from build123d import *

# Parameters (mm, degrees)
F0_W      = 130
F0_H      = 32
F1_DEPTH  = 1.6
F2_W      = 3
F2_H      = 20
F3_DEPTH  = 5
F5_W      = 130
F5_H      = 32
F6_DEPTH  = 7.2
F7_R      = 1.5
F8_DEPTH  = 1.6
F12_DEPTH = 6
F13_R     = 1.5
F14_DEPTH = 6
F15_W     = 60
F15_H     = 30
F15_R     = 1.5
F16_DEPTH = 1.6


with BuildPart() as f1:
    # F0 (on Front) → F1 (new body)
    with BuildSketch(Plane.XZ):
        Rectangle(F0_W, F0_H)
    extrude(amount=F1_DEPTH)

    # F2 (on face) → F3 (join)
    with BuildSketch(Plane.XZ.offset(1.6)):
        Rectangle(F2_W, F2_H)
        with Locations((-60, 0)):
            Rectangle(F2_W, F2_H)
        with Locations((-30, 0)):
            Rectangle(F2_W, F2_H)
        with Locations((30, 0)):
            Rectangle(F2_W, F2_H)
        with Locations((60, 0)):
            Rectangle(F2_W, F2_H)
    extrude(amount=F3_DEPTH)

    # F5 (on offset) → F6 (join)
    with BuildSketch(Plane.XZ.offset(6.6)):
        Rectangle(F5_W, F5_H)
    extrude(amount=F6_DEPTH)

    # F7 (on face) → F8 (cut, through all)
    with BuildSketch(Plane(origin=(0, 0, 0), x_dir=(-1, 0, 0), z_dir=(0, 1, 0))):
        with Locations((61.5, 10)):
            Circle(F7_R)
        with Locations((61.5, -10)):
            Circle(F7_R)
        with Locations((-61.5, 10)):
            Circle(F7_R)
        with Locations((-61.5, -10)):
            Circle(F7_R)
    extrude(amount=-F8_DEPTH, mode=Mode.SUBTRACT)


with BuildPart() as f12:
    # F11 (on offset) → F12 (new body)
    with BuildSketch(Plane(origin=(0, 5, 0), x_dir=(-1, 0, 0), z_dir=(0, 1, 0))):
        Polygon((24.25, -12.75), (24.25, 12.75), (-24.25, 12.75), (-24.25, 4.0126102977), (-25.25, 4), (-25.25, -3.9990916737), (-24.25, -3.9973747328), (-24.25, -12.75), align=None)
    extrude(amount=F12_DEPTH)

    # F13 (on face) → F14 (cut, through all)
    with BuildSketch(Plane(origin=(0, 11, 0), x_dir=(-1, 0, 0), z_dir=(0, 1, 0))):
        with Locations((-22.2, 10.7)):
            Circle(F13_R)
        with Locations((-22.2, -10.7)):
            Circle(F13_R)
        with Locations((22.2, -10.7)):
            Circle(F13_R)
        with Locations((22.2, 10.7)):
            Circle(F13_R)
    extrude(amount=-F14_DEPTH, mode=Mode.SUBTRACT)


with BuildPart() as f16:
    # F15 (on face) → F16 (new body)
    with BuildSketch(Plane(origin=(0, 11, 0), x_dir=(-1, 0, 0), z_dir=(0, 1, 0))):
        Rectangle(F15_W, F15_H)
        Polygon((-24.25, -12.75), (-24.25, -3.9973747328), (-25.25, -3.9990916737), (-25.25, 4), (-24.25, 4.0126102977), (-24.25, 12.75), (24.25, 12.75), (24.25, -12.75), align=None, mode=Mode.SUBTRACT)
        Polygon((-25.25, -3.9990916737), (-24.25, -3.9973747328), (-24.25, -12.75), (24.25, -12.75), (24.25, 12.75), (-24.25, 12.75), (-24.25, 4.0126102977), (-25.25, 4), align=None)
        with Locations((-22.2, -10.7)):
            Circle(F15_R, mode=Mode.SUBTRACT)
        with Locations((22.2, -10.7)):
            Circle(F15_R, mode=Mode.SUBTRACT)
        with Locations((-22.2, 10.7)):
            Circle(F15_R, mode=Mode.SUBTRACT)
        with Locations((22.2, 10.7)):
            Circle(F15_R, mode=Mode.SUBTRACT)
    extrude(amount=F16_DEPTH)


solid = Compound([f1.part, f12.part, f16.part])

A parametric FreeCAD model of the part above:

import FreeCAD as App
import Part
import Sketcher
Q = App.Units.Quantity

doc = App.newDocument("Part")
body = doc.addObject("PartDesign::Body", "Body")

sketch1 = body.newObject("Sketcher::SketchObject", "Sketch")
sketch1.AttachmentSupport = (doc.getObject("XZ_Plane"), [""])
sketch1.MapMode = "FlatFace"
sketch1.addGeometry([
    Part.LineSegment(App.Vector(-65, 16, 0), App.Vector(-65, -16, 0)),
    Part.LineSegment(App.Vector(-65, -16, 0), App.Vector(65, -16, 0)),
    Part.LineSegment(App.Vector(65, -16, 0), App.Vector(65, 16, 0)),
    Part.LineSegment(App.Vector(65, 16, 0), App.Vector(-65, 16, 0)),
], False)
sketch1.addConstraint([
    Sketcher.Constraint("Coincident", 0, 2, 1, 1),
    Sketcher.Constraint("Coincident", 1, 2, 2, 1),
    Sketcher.Constraint("Coincident", 2, 2, 3, 1),
    Sketcher.Constraint("Coincident", 3, 2, 0, 1),
    Sketcher.Constraint("Vertical", 0),
    Sketcher.Constraint("Horizontal", 1),
    Sketcher.Constraint("Vertical", 2),
    Sketcher.Constraint("Horizontal", 3),
    Sketcher.Constraint("Symmetric", 0, 2, 2, 2, -1, 1),
    Sketcher.Constraint("DistanceX", 1, 1, 1, 2, Q("130 mm")),
    Sketcher.Constraint("DistanceY", 0, 2, 0, 1, Q("32 mm")),
])
pad1 = body.newObject("PartDesign::Pad", "Pad")
pad1.Profile = sketch1
pad1.Length = 1.6

sketch2 = body.newObject("Sketcher::SketchObject", "Sketch001")
sketch2.AttachmentSupport = (doc.getObject("XZ_Plane"), [""])
sketch2.MapMode = "FlatFace"
sketch2.AttachmentOffset = App.Placement(App.Vector(0, 0, 1.6), App.Rotation())
sketch2.addGeometry([
    Part.LineSegment(App.Vector(-1.5, 10, 0), App.Vector(-1.5, -10, 0)),
    Part.LineSegment(App.Vector(-1.5, -10, 0), App.Vector(1.5, -10, 0)),
    Part.LineSegment(App.Vector(1.5, -10, 0), App.Vector(1.5, 10, 0)),
    Part.LineSegment(App.Vector(1.5, 10, 0), App.Vector(-1.5, 10, 0)),
    Part.LineSegment(App.Vector(-61.5, 10, 0), App.Vector(-61.5, -10, 0)),
    Part.LineSegment(App.Vector(-61.5, -10, 0), App.Vector(-58.5, -10, 0)),
    Part.LineSegment(App.Vector(-58.5, -10, 0), App.Vector(-58.5, 10, 0)),
    Part.LineSegment(App.Vector(-58.5, 10, 0), App.Vector(-61.5, 10, 0)),
    Part.LineSegment(App.Vector(-31.5, 10, 0), App.Vector(-31.5, -10, 0)),
    Part.LineSegment(App.Vector(-31.5, -10, 0), App.Vector(-28.5, -10, 0)),
    Part.LineSegment(App.Vector(-28.5, -10, 0), App.Vector(-28.5, 10, 0)),
    Part.LineSegment(App.Vector(-28.5, 10, 0), App.Vector(-31.5, 10, 0)),
    Part.LineSegment(App.Vector(28.5, 10, 0), App.Vector(28.5, -10, 0)),
    Part.LineSegment(App.Vector(28.5, -10, 0), App.Vector(31.5, -10, 0)),
    Part.LineSegment(App.Vector(31.5, -10, 0), App.Vector(31.5, 10, 0)),
    Part.LineSegment(App.Vector(31.5, 10, 0), App.Vector(28.5, 10, 0)),
    Part.LineSegment(App.Vector(58.5, 10, 0), App.Vector(58.5, -10, 0)),
    Part.LineSegment(App.Vector(58.5, -10, 0), App.Vector(61.5, -10, 0)),
    Part.LineSegment(App.Vector(61.5, -10, 0), App.Vector(61.5, 10, 0)),
    Part.LineSegment(App.Vector(61.5, 10, 0), App.Vector(58.5, 10, 0)),
], False)
sketch2.addConstraint([
    Sketcher.Constraint("Coincident", 0, 2, 1, 1),
    Sketcher.Constraint("Coincident", 1, 2, 2, 1),
    Sketcher.Constraint("Coincident", 2, 2, 3, 1),
    Sketcher.Constraint("Coincident", 3, 2, 0, 1),
    Sketcher.Constraint("Coincident", 4, 2, 5, 1),
    Sketcher.Constraint("Coincident", 5, 2, 6, 1),
    Sketcher.Constraint("Coincident", 6, 2, 7, 1),
    Sketcher.Constraint("Coincident", 7, 2, 4, 1),
    Sketcher.Constraint("Coincident", 8, 2, 9, 1),
    Sketcher.Constraint("Coincident", 9, 2, 10, 1),
    Sketcher.Constraint("Coincident", 10, 2, 11, 1),
    Sketcher.Constraint("Coincident", 11, 2, 8, 1),
    Sketcher.Constraint("Coincident", 12, 2, 13, 1),
    Sketcher.Constraint("Coincident", 13, 2, 14, 1),
    Sketcher.Constraint("Coincident", 14, 2, 15, 1),
    Sketcher.Constraint("Coincident", 15, 2, 12, 1),
    Sketcher.Constraint("Coincident", 16, 2, 17, 1),
    Sketcher.Constraint("Coincident", 17, 2, 18, 1),
    Sketcher.Constraint("Coincident", 18, 2, 19, 1),
    Sketcher.Constraint("Coincident", 19, 2, 16, 1),
    Sketcher.Constraint("Vertical", 0),
    Sketcher.Constraint("Horizontal", 1),
    Sketcher.Constraint("Vertical", 2),
    Sketcher.Constraint("Horizontal", 3),
    Sketcher.Constraint("Vertical", 4),
    Sketcher.Constraint("Horizontal", 5),
    Sketcher.Constraint("Vertical", 6),
    Sketcher.Constraint("Horizontal", 7),
    Sketcher.Constraint("Vertical", 8),
    Sketcher.Constraint("Horizontal", 9),
    Sketcher.Constraint("Vertical", 10),
    Sketcher.Constraint("Horizontal", 11),
    Sketcher.Constraint("Vertical", 12),
    Sketcher.Constraint("Horizontal", 13),
    Sketcher.Constraint("Vertical", 14),
    Sketcher.Constraint("Horizontal", 15),
    Sketcher.Constraint("Vertical", 16),
    Sketcher.Constraint("Horizontal", 17),
    Sketcher.Constraint("Vertical", 18),
    Sketcher.Constraint("Horizontal", 19),
    Sketcher.Constraint("Symmetric", 0, 2, 2, 2, -1, 1),
    Sketcher.Constraint("Symmetric", 10, 2, 12, 2, -1, 1),
    Sketcher.Constraint("Symmetric", 8, 2, 14, 2, -1, 1),
    Sketcher.Constraint("Symmetric", 6, 2, 16, 2, -1, 1),
    Sketcher.Constraint("Symmetric", 4, 2, 18, 2, -1, 1),
    Sketcher.Constraint("Horizontal", 1, 2, 4, 2),
    Sketcher.Constraint("Horizontal", 3, 2, 6, 2),
    Sketcher.Constraint("Horizontal", 5, 2, 8, 2),
    Sketcher.Constraint("Horizontal", 7, 2, 10, 2),
    Sketcher.Constraint("Equal", 3, 5),
    Sketcher.Constraint("Equal", 7, 9),
    Sketcher.Constraint("DistanceX", 1, 1, 1, 2, Q("3 mm")),
    Sketcher.Constraint("DistanceY", 0, 2, 0, 1, Q("20 mm")),
    Sketcher.Constraint("DistanceX", 4, 2, 0, 2, Q("60 mm")),
    Sketcher.Constraint("DistanceX", 5, 2, 8, 2, Q("27 mm")),
])
pad2 = body.newObject("PartDesign::Pad", "Pad001")
pad2.Profile = sketch2
pad2.Length = 5

sketch3 = body.newObject("Sketcher::SketchObject", "Sketch002")
sketch3.AttachmentSupport = (doc.getObject("XZ_Plane"), [""])
sketch3.MapMode = "FlatFace"
sketch3.AttachmentOffset = App.Placement(App.Vector(0, 0, 6.6), App.Rotation())
sketch3.addGeometry([
    Part.LineSegment(App.Vector(-65, 16, 0), App.Vector(-65, -16, 0)),
    Part.LineSegment(App.Vector(-65, -16, 0), App.Vector(65, -16, 0)),
    Part.LineSegment(App.Vector(65, -16, 0), App.Vector(65, 16, 0)),
    Part.LineSegment(App.Vector(65, 16, 0), App.Vector(-65, 16, 0)),
], False)
sketch3.addConstraint([
    Sketcher.Constraint("Coincident", 0, 2, 1, 1),
    Sketcher.Constraint("Coincident", 1, 2, 2, 1),
    Sketcher.Constraint("Coincident", 2, 2, 3, 1),
    Sketcher.Constraint("Coincident", 3, 2, 0, 1),
    Sketcher.Constraint("Vertical", 0),
    Sketcher.Constraint("Horizontal", 1),
    Sketcher.Constraint("Vertical", 2),
    Sketcher.Constraint("Horizontal", 3),
    Sketcher.Constraint("Symmetric", 0, 2, 2, 2, -1, 1),
    Sketcher.Constraint("DistanceX", 1, 1, 1, 2, Q("130 mm")),
    Sketcher.Constraint("DistanceY", 0, 2, 0, 1, Q("32 mm")),
])
pad3 = body.newObject("PartDesign::Pad", "Pad002")
pad3.Profile = sketch3
pad3.Length = 7.2

sketch4 = body.newObject("Sketcher::SketchObject", "Sketch003")
sketch4.AttachmentSupport = (doc.getObject("XZ_Plane"), [""])
sketch4.MapMode = "FlatFace"
sketch4.addGeometry([
    Part.Circle(App.Vector(-61.5, 10, 0), App.Vector(0, 0, 1), 1.5),
    Part.Circle(App.Vector(-61.5, -10, 0), App.Vector(0, 0, 1), 1.5),
    Part.Circle(App.Vector(61.5, 10, 0), App.Vector(0, 0, 1), 1.5),
    Part.Circle(App.Vector(61.5, -10, 0), App.Vector(0, 0, 1), 1.5),
], False)
sketch4.addConstraint([
    Sketcher.Constraint("Equal", 0, 1),
    Sketcher.Constraint("Equal", 1, 2),
    Sketcher.Constraint("Equal", 2, 3),
    Sketcher.Constraint("Symmetric", 1, 3, 2, 3, -1, 1),
    Sketcher.Constraint("Symmetric", 0, 3, 3, 3, -1, 1),
    Sketcher.Constraint("Symmetric", 0, 3, 2, 3, -2),
    Sketcher.Constraint("Diameter", 0, Q("3 mm")),
    Sketcher.Constraint("DistanceY", -1, 1, 0, 3, Q("10 mm")),
    Sketcher.Constraint("DistanceX", 0, 3, 2, 3, Q("123 mm")),
])
pocket1 = body.newObject("PartDesign::Pocket", "Pocket")
pocket1.Profile = sketch4
pocket1.Length = 1.6
pocket1.Reversed = True
body2 = doc.addObject("PartDesign::Body", "Body001")

sketch5 = body2.newObject("Sketcher::SketchObject", "Sketch004")
sketch5.AttachmentSupport = (doc.getObject("XZ_Plane001"), [""])
sketch5.MapMode = "FlatFace"
sketch5.AttachmentOffset = App.Placement(App.Vector(0, 0, -5), App.Rotation())
sketch5.addGeometry([
    Part.LineSegment(App.Vector(-24.2, -12.8, 0), App.Vector(-24.2, 12.8, 0)),
    Part.LineSegment(App.Vector(-24.2, 12.8, 0), App.Vector(24.2, 12.8, 0)),
    Part.LineSegment(App.Vector(24.2, 12.8, 0), App.Vector(24.2, 4, 0)),
    Part.LineSegment(App.Vector(24.2, 4, 0), App.Vector(25.2, 4, 0)),
    Part.LineSegment(App.Vector(25.2, 4, 0), App.Vector(25.2, -4, 0)),
    Part.LineSegment(App.Vector(25.2, -4, 0), App.Vector(24.2, -4, 0)),
    Part.LineSegment(App.Vector(24.2, -4, 0), App.Vector(24.2, -12.8, 0)),
    Part.LineSegment(App.Vector(24.2, -12.8, 0), App.Vector(-24.2, -12.8, 0)),
], False)
sketch5.addConstraint([
    Sketcher.Constraint("Coincident", 0, 2, 1, 1),
    Sketcher.Constraint("Coincident", 1, 2, 2, 1),
    Sketcher.Constraint("Coincident", 2, 2, 3, 1),
    Sketcher.Constraint("Coincident", 3, 2, 4, 1),
    Sketcher.Constraint("Coincident", 4, 2, 5, 1),
    Sketcher.Constraint("Coincident", 5, 2, 6, 1),
    Sketcher.Constraint("Coincident", 6, 2, 7, 1),
    Sketcher.Constraint("Coincident", 7, 2, 0, 1),
    Sketcher.Constraint("Vertical", 0),
    Sketcher.Constraint("Horizontal", 1),
    Sketcher.Constraint("Vertical", 2),
    Sketcher.Constraint("Vertical", 4),
    Sketcher.Constraint("Vertical", 6),
    Sketcher.Constraint("Horizontal", 7),
    Sketcher.Constraint("Symmetric", 0, 2, 6, 2, -1, 1),
    Sketcher.Constraint("Vertical", 2, 2, 5, 2),
    Sketcher.Constraint("Distance", 5, Q("1.000001 mm")),
    Sketcher.Constraint("DistanceX", 1, 1, 1, 2, Q("48.5 mm")),
    Sketcher.Constraint("DistanceY", 0, 1, 0, 2, Q("25.5 mm")),
    Sketcher.Constraint("DistanceY", -1, 1, 3, 2, Q("4 mm")),
    Sketcher.Constraint("DistanceY", 2, 2, 2, 1, Q("8.73739 mm")),
    Sketcher.Constraint("DistanceY", 4, 2, 4, 1, Q("7.999092 mm")),
    Sketcher.Constraint("DistanceY", 6, 2, 6, 1, Q("8.752625 mm")),
])
pad4 = body2.newObject("PartDesign::Pad", "Pad003")
pad4.Profile = sketch5
pad4.Length = 6
pad4.Reversed = True

sketch6 = body2.newObject("Sketcher::SketchObject", "Sketch005")
sketch6.AttachmentSupport = (doc.getObject("XZ_Plane001"), [""])
sketch6.MapMode = "FlatFace"
sketch6.AttachmentOffset = App.Placement(App.Vector(0, 0, -11), App.Rotation())
sketch6.addGeometry([
    Part.Circle(App.Vector(22.2, 10.7, 0), App.Vector(0, 0, 1), 1.5),
    Part.Circle(App.Vector(22.2, -10.7, 0), App.Vector(0, 0, 1), 1.5),
    Part.Circle(App.Vector(-22.2, -10.7, 0), App.Vector(0, 0, 1), 1.5),
    Part.Circle(App.Vector(-22.2, 10.7, 0), App.Vector(0, 0, 1), 1.5),
], False)
sketch6.addConstraint([
    Sketcher.Constraint("Equal", 0, 1),
    Sketcher.Constraint("Equal", 1, 2),
    Sketcher.Constraint("Equal", 2, 3),
    Sketcher.Constraint("Symmetric", 0, 3, 2, 3, -1, 1),
    Sketcher.Constraint("Symmetric", 1, 3, 3, 3, -1, 1),
    Sketcher.Constraint("Symmetric", 1, 3, 2, 3, -2),
    Sketcher.Constraint("Diameter", 0, Q("3 mm")),
    Sketcher.Constraint("DistanceX", -1, 1, 0, 3, Q("22.2 mm")),
    Sketcher.Constraint("DistanceY", -1, 1, 0, 3, Q("10.7 mm")),
])
pocket2 = body2.newObject("PartDesign::Pocket", "Pocket001")
pocket2.Profile = sketch6
pocket2.Type = "ThroughAll"
pocket2.Reversed = True
body3 = doc.addObject("PartDesign::Body", "Body002")

sketch7 = body3.newObject("Sketcher::SketchObject", "Sketch006")
sketch7.AttachmentSupport = (doc.getObject("XZ_Plane002"), [""])
sketch7.MapMode = "FlatFace"
sketch7.AttachmentOffset = App.Placement(App.Vector(0, 0, -11), App.Rotation())
sketch7.addGeometry([
    Part.LineSegment(App.Vector(30, 15, 0), App.Vector(30, -15, 0)),
    Part.LineSegment(App.Vector(30, -15, 0), App.Vector(-30, -15, 0)),
    Part.LineSegment(App.Vector(-30, -15, 0), App.Vector(-30, 15, 0)),
    Part.LineSegment(App.Vector(-30, 15, 0), App.Vector(30, 15, 0)),
    Part.Circle(App.Vector(22.2, -10.7, 0), App.Vector(0, 0, 1), 1.5),
    Part.Circle(App.Vector(-22.2, -10.7, 0), App.Vector(0, 0, 1), 1.5),
    Part.Circle(App.Vector(22.2, 10.7, 0), App.Vector(0, 0, 1), 1.5),
    Part.Circle(App.Vector(-22.2, 10.7, 0), App.Vector(0, 0, 1), 1.5),
], False)
sketch7.addConstraint([
    Sketcher.Constraint("Coincident", 0, 2, 1, 1),
    Sketcher.Constraint("Coincident", 1, 2, 2, 1),
    Sketcher.Constraint("Coincident", 2, 2, 3, 1),
    Sketcher.Constraint("Coincident", 3, 2, 0, 1),
    Sketcher.Constraint("Vertical", 0),
    Sketcher.Constraint("Horizontal", 1),
    Sketcher.Constraint("Vertical", 2),
    Sketcher.Constraint("Horizontal", 3),
    Sketcher.Constraint("Equal", 4, 5),
    Sketcher.Constraint("Equal", 5, 6),
    Sketcher.Constraint("Equal", 6, 7),
    Sketcher.Constraint("Symmetric", 5, 3, 6, 3, -1, 1),
    Sketcher.Constraint("Symmetric", 4, 3, 7, 3, -1, 1),
    Sketcher.Constraint("Symmetric", 0, 2, 2, 2, -1, 1),
    Sketcher.Constraint("Symmetric", 4, 3, 5, 3, -2),
    Sketcher.Constraint("Diameter", 4, Q("3 mm")),
    Sketcher.Constraint("DistanceX", 1, 2, 1, 1, Q("60 mm")),
    Sketcher.Constraint("DistanceY", 0, 2, 0, 1, Q("30 mm")),
    Sketcher.Constraint("DistanceX", -1, 1, 4, 3, Q("22.2 mm")),
    Sketcher.Constraint("DistanceY", 4, 3, -1, 1, Q("10.7 mm")),
])
pad5 = body3.newObject("PartDesign::Pad", "Pad004")
pad5.Profile = sketch7
pad5.Length = 1.6
pad5.Reversed = True

doc.recompute()
